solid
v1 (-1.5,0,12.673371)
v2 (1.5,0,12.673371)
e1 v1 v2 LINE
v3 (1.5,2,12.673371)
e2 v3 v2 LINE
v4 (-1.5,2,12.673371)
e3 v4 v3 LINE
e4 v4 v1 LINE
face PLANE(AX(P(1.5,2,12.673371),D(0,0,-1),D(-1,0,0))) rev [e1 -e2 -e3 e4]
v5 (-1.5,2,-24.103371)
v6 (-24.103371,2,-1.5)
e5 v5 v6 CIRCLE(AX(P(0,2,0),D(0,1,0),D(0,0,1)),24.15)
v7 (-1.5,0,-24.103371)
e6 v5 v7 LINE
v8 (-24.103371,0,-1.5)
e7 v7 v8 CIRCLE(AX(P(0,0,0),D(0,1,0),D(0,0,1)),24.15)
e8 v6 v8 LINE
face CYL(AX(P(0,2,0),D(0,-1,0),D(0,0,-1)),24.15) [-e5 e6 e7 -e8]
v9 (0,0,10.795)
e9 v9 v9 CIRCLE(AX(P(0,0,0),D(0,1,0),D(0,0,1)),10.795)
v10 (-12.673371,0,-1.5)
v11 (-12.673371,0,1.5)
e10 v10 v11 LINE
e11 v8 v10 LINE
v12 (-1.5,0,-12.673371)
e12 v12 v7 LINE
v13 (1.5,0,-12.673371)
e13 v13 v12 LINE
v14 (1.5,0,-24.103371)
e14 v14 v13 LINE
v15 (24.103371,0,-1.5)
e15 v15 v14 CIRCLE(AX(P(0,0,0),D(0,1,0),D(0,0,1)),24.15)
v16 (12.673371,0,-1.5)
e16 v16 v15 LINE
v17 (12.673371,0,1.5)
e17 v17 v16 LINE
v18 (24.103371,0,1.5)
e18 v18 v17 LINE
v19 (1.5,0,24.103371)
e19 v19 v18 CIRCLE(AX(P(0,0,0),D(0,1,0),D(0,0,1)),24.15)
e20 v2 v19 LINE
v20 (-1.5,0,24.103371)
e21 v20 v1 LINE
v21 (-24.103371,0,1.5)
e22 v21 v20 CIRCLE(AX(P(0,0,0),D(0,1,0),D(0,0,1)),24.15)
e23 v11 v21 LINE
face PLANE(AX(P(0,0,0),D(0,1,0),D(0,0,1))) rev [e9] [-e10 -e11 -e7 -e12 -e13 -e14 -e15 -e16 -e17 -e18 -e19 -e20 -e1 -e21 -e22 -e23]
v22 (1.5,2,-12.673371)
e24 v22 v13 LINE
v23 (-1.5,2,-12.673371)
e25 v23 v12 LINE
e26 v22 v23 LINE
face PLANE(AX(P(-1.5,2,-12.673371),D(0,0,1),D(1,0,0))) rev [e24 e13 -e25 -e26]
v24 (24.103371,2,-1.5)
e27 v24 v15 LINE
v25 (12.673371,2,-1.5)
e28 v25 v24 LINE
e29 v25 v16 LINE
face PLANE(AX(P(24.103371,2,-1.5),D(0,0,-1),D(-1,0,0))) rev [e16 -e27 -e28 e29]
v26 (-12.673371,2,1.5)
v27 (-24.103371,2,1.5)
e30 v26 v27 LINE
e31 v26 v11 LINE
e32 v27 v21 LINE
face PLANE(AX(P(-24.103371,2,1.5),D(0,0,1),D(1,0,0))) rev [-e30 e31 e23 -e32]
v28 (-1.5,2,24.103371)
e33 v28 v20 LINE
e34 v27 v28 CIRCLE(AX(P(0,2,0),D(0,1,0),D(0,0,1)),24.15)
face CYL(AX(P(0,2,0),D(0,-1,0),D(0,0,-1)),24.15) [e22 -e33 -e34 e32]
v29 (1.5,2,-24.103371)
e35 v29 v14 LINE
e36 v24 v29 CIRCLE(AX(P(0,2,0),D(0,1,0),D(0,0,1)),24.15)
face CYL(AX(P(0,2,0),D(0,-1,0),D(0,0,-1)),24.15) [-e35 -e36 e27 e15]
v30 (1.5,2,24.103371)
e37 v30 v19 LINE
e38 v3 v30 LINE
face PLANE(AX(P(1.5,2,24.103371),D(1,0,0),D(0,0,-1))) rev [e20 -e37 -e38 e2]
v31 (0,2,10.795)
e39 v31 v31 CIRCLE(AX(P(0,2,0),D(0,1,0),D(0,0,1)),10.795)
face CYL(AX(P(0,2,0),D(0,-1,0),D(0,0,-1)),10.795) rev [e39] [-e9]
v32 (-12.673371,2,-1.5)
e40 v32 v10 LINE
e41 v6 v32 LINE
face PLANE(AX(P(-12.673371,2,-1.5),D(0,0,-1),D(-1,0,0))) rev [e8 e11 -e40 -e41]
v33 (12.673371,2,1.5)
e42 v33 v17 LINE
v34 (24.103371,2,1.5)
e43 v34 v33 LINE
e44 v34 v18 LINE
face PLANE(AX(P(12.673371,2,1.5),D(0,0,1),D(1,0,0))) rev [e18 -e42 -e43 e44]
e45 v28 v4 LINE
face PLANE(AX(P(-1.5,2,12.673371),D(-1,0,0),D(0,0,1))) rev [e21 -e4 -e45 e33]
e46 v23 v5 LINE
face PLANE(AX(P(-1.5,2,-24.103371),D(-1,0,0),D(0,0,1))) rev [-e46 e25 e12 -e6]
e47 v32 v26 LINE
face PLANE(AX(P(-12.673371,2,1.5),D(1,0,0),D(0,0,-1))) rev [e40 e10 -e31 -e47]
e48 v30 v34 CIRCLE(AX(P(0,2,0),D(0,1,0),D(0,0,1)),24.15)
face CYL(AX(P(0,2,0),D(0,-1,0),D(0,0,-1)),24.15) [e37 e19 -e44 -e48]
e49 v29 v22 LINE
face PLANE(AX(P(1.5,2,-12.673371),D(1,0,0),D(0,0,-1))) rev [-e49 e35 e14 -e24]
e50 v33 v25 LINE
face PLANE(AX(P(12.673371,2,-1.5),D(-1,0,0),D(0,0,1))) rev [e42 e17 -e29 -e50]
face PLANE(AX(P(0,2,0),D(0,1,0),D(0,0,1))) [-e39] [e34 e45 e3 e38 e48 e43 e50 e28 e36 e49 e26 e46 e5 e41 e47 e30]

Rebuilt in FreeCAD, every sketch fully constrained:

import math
import FreeCAD as App
import Part
import Sketcher
from FreeCAD import Vector
Q = App.Units.Quantity

doc = App.newDocument("Part")
body = doc.addObject("PartDesign::Body", "Body")

# Sketch on XZ plane
sketch1 = doc.addObject("Sketcher::SketchObject", "Sketch")
body.addObject(sketch1)
sketch1.AttachmentSupport = (doc.XZ_Plane, [""])
sketch1.MapMode = "FlatFace"
sketch1.addGeometry([
    Part.LineSegment(Vector(-1.5, -12.7, 0), Vector(-1.5, -24.1, 0)),  # 0
    Part.ArcOfCircle(Part.Circle(Vector(0, 0, 0), Vector(0, 0, 1), 24.1), math.radians(-176), math.radians(-94)),  # 1
    Part.LineSegment(Vector(-24.1, -1.5, 0), Vector(-12.7, -1.5, 0)),  # 2
    Part.LineSegment(Vector(-12.7, -1.5, 0), Vector(-12.7, 1.5, 0)),  # 3
    Part.LineSegment(Vector(-12.7, 1.5, 0), Vector(-24.1, 1.5, 0)),  # 4
    Part.ArcOfCircle(Part.Circle(Vector(0, 0, 0), Vector(0, 0, 1), 24.1), math.radians(94), math.radians(176)),  # 5
    Part.LineSegment(Vector(-1.5, 24.1, 0), Vector(-1.5, 12.7, 0)),  # 6
    Part.LineSegment(Vector(-1.5, 12.7, 0), Vector(1.5, 12.7, 0)),  # 7
    Part.LineSegment(Vector(1.5, 12.7, 0), Vector(1.5, 24.1, 0)),  # 8
    Part.ArcOfCircle(Part.Circle(Vector(0, 0, 0), Vector(0, 0, 1), 24.1), math.radians(4), math.radians(86)),  # 9
    Part.LineSegment(Vector(24.1, 1.5, 0), Vector(12.7, 1.5, 0)),  # 10
    Part.LineSegment(Vector(12.7, 1.5, 0), Vector(12.7, -1.5, 0)),  # 11
    Part.LineSegment(Vector(12.7, -1.5, 0), Vector(24.1, -1.5, 0)),  # 12
    Part.ArcOfCircle(Part.Circle(Vector(0, 0, 0), Vector(0, 0, 1), 24.1), math.radians(-86), math.radians(-4)),  # 13
    Part.LineSegment(Vector(1.5, -24.1, 0), Vector(1.5, -12.7, 0)),  # 14
    Part.LineSegment(Vector(1.5, -12.7, 0), Vector(-1.5, -12.7, 0)),  # 15
    Part.Circle(Vector(0, 0, 0), Vector(0, 0, 1), 10.8),  # 16
], False)
sketch1.addConstraint([
    Sketcher.Constraint("Coincident", 0, 2, 1, 2),
    Sketcher.Constraint("Coincident", 1, 1, 2, 1),
    Sketcher.Constraint("Coincident", 2, 2, 3, 1),
    Sketcher.Constraint("Coincident", 3, 2, 4, 1),
    Sketcher.Constraint("Coincident", 4, 2, 5, 2),
    Sketcher.Constraint("Coincident", 5, 1, 6, 1),
    Sketcher.Constraint("Coincident", 6, 2, 7, 1),
    Sketcher.Constraint("Coincident", 7, 2, 8, 1),
    Sketcher.Constraint("Coincident", 8, 2, 9, 2),
    Sketcher.Constraint("Coincident", 9, 1, 10, 1),
    Sketcher.Constraint("Coincident", 10, 2, 11, 1),
    Sketcher.Constraint("Coincident", 11, 2, 12, 1),
    Sketcher.Constraint("Coincident", 12, 2, 13, 2),
    Sketcher.Constraint("Coincident", 13, 1, 14, 1),
    Sketcher.Constraint("Coincident", 14, 2, 15, 1),
    Sketcher.Constraint("Coincident", 15, 2, 0, 1),
    Sketcher.Constraint("Vertical", 0),
    Sketcher.Constraint("Horizontal", 2),
    Sketcher.Constraint("Vertical", 3),
    Sketcher.Constraint("Horizontal", 4),
    Sketcher.Constraint("Vertical", 6),
    Sketcher.Constraint("Horizontal", 7),
    Sketcher.Constraint("Vertical", 8),
    Sketcher.Constraint("Horizontal", 10),
    Sketcher.Constraint("Vertical", 11),
    Sketcher.Constraint("Horizontal", 12),
    Sketcher.Constraint("Vertical", 14),
    Sketcher.Constraint("Horizontal", 15),
    Sketcher.Constraint("Coincident", 1, 3, -1, 1),
    Sketcher.Constraint("Coincident", 5, 3, -1, 1),
    Sketcher.Constraint("Coincident", 9, 3, -1, 1),
    Sketcher.Constraint("Coincident", 13, 3, -1, 1),
    Sketcher.Constraint("Coincident", 16, 3, -1, 1),
    Sketcher.Constraint("Equal", 1, 5),
    Sketcher.Constraint("Equal", 5, 9),
    Sketcher.Constraint("Equal", 9, 13),
    Sketcher.Constraint("Symmetric", 2, 2, 10, 2, -1, 1),
    Sketcher.Constraint("Symmetric", 6, 2, 14, 2, -1, 1),
    Sketcher.Constraint("Horizontal", 5, 1, 8, 2),
    Sketcher.Constraint("Horizontal", 4, 2, 9, 1),
    Sketcher.Constraint("Horizontal", 2, 2, 11, 2),
    Sketcher.Constraint("Horizontal", 0, 2, 13, 1),
    Sketcher.Constraint("Equal", 12, 0),
    Sketcher.Constraint("Equal", 15, 3),
    Sketcher.Constraint("Diameter", 16, Q("21.59 mm")),
    Sketcher.Constraint("DistanceX", 7, 1, 7, 2, Q("3 mm")),
    Sketcher.Constraint("Radius", 1, Q("24.15 mm")),
    Sketcher.Constraint("DistanceX", 2, 1, 2, 2, Q("11.43 mm")),
])
pad1 = doc.addObject("PartDesign::Pad", "Pad")
body.addObject(pad1)
pad1.Profile = sketch1
pad1.Length = 2
pad1.Reversed = True

doc.recompute()
